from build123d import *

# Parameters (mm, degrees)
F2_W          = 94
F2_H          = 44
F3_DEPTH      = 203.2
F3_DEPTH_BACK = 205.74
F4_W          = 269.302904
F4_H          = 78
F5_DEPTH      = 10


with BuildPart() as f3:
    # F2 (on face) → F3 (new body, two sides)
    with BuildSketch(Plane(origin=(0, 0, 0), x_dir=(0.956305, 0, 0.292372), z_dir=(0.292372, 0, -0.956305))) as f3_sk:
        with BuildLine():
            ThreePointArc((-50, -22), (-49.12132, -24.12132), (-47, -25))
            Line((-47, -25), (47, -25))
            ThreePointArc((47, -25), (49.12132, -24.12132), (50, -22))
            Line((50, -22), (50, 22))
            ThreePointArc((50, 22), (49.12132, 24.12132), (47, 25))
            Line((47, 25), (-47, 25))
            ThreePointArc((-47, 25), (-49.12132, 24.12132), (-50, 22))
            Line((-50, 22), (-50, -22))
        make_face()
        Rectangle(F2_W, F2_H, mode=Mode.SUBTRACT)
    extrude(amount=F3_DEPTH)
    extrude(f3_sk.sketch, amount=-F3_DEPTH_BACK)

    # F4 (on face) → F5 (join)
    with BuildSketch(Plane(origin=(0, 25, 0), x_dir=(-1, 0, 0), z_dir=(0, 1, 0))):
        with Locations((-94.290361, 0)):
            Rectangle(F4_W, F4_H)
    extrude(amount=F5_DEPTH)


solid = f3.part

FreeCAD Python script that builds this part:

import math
import FreeCAD as App
import Part
import Sketcher
from FreeCAD import Vector
Q = App.Units.Quantity

doc = App.newDocument("Part")
params = doc.addObject("Spreadsheet::Sheet", "Params")
for row, (alias, value) in enumerate([
    ("sketch1_radius", "3.000001 mm"),
    ("sketch1_width", "94 mm"),
    ("sketch1_height", "44 mm"),
    ("pad1_length", "203.2 mm"),
    ("pad1_length2", "205.74 mm"),
    ("sketch2_height", "78 mm"),
    ("pad2_length", "10 mm"),
], start=1):
    params.set(f"A{row}", alias)
    params.set(f"B{row}", "=" + value)
    params.setAlias(f"B{row}", alias)

body = doc.addObject("PartDesign::Body", "Body")

# Sketch on an angled plane
sketch1 = body.newObject("Sketcher::SketchObject", "Sketch")
sketch1.Placement = App.Placement(Vector(0, 0, 0), App.Rotation(Vector(0.956304694, 0, 0.292371907), Vector(0, -1, 0), Vector(0.292371907, 0, -0.956304694), "ZXY"))
sketch1.addGeometry([
    Part.ArcOfCircle(Part.Circle(Vector(-46.999999, -21.999999, 0), Vector(0, 0, 1), 3.000001), math.radians(-179.999978), math.radians(-90.000022)),  # 0
    Part.LineSegment(Vector(-47, -25, 0), Vector(47, -25, 0)),  # 1
    Part.ArcOfCircle(Part.Circle(Vector(46.999999, -21.999999, 0), Vector(0, 0, 1), 3.000001), math.radians(-89.999978), math.radians(-0.000022)),  # 2
    Part.LineSegment(Vector(50, -22, 0), Vector(50, 22, 0)),  # 3
    Part.ArcOfCircle(Part.Circle(Vector(46.999999, 21.999999, 0), Vector(0, 0, 1), 3.000001), math.radians(0.000022), math.radians(89.999978)),  # 4
    Part.LineSegment(Vector(47, 25, 0), Vector(-47, 25, 0)),  # 5
    Part.ArcOfCircle(Part.Circle(Vector(-46.999999, 21.999999, 0), Vector(0, 0, 1), 3.000001), math.radians(90.000022), math.radians(179.999978)),  # 6
    Part.LineSegment(Vector(-50, 22, 0), Vector(-50, -22, 0)),  # 7
    Part.LineSegment(Vector(47, -22, 0), Vector(-47, -22, 0)),  # 8
    Part.LineSegment(Vector(-47, -22, 0), Vector(-47, 22, 0)),  # 9
    Part.LineSegment(Vector(-47, 22, 0), Vector(47, 22, 0)),  # 10
    Part.LineSegment(Vector(47, 22, 0), Vector(47, -22, 0)),  # 11
], False)
sketch1.addConstraint([
    Sketcher.Constraint("Tangent", 0, 2, 1, 1),
    Sketcher.Constraint("Tangent", 1, 2, 2, 1),
    Sketcher.Constraint("Tangent", 2, 2, 3, 1),
    Sketcher.Constraint("Tangent", 3, 2, 4, 1),
    Sketcher.Constraint("Tangent", 4, 2, 5, 1),
    Sketcher.Constraint("Tangent", 5, 2, 6, 1),
    Sketcher.Constraint("Tangent", 6, 2, 7, 1),
    Sketcher.Constraint("Tangent", 7, 2, 0, 1),
    Sketcher.Constraint("Coincident", 8, 2, 9, 1),
    Sketcher.Constraint("Coincident", 9, 2, 10, 1),
    Sketcher.Constraint("Coincident", 10, 2, 11, 1),
    Sketcher.Constraint("Coincident", 11, 2, 8, 1),
    Sketcher.Constraint("Horizontal", 1),
    Sketcher.Constraint("Vertical", 3),
    Sketcher.Constraint("Horizontal", 5),
    Sketcher.Constraint("Vertical", 7),
    Sketcher.Constraint("Horizontal", 8),
    Sketcher.Constraint("Vertical", 9),
    Sketcher.Constraint("Horizontal", 10),
    Sketcher.Constraint("Vertical", 11),
    Sketcher.Constraint("Coincident", 8, 2, 0, 3),
    Sketcher.Constraint("Coincident", 9, 2, 6, 3),
    Sketcher.Constraint("Coincident", 10, 2, 4, 3),
    Sketcher.Constraint("Equal", 0, 2),
    Sketcher.Constraint("Symmetric", 0, 3, 4, 3, -1, 1),
    Sketcher.Constraint("Radius", 0, Q("3.000001 mm")),
    Sketcher.Constraint("DistanceX", 1, 1, 1, 2, Q("94 mm")),
    Sketcher.Constraint("DistanceY", 3, 1, 3, 2, Q("44 mm")),
])
sketch1.setExpression("Constraints[25]", "Params.sketch1_radius")
sketch1.setExpression("Constraints[26]", "Params.sketch1_width")
sketch1.setExpression("Constraints[27]", "Params.sketch1_height")
pad1 = body.newObject("PartDesign::Pad", "Pad")
pad1.Profile = sketch1
pad1.Type = "TwoLengths"
pad1.setExpression("Length", "Params.pad1_length")
pad1.setExpression("Length2", "Params.pad1_length2")

# Sketch on XZ plane
sketch2 = body.newObject("Sketcher::SketchObject", "Sketch001")
sketch2.AttachmentSupport = (doc.getObject("XZ_Plane"), [""])
sketch2.MapMode = "FlatFace"
sketch2.AttachmentOffset = App.Placement(Vector(0, 0, -25), App.Rotation())
sketch2.addGeometry([
    Part.LineSegment(Vector(228.941813, 39, 0), Vector(228.941813, -39, 0)),
    Part.LineSegment(Vector(228.941813, -39, 0), Vector(-40.361091, -39, 0)),
    Part.LineSegment(Vector(-40.361091, -39, 0), Vector(-40.361091, 39, 0)),
    Part.LineSegment(Vector(-40.361091, 39, 0), Vector(228.941813, 39, 0)),
], False)
sketch2.addConstraint([
    Sketcher.Constraint("Coincident", 0, 2, 1, 1),
    Sketcher.Constraint("Coincident", 1, 2, 2, 1),
    Sketcher.Constraint("Coincident", 2, 2, 3, 1),
    Sketcher.Constraint("Coincident", 3, 2, 0, 1),
    Sketcher.Constraint("Vertical", 0),
    Sketcher.Constraint("Horizontal", 1),
    Sketcher.Constraint("Vertical", 2),
    Sketcher.Constraint("Horizontal", 3),
    Sketcher.Constraint("DistanceY", 0, 2, 0, 1, Q("78 mm")),
    Sketcher.Constraint("DistanceY", 0, 2, -1, 1, Q("39 mm")),
    Sketcher.Constraint("DistanceX", 1, 2, 1, 1, Q("269.302904 mm")),
    Sketcher.Constraint("DistanceX", 1, 2, -1, 1, Q("40.361091 mm")),
])
sketch2.setExpression("Constraints[8]", "Params.sketch2_height")
pad2 = body.newObject("PartDesign::Pad", "Pad001")
pad2.Profile = sketch2
pad2.setExpression("Length", "Params.pad2_length")
pad2.Reversed = True

doc.recompute()
